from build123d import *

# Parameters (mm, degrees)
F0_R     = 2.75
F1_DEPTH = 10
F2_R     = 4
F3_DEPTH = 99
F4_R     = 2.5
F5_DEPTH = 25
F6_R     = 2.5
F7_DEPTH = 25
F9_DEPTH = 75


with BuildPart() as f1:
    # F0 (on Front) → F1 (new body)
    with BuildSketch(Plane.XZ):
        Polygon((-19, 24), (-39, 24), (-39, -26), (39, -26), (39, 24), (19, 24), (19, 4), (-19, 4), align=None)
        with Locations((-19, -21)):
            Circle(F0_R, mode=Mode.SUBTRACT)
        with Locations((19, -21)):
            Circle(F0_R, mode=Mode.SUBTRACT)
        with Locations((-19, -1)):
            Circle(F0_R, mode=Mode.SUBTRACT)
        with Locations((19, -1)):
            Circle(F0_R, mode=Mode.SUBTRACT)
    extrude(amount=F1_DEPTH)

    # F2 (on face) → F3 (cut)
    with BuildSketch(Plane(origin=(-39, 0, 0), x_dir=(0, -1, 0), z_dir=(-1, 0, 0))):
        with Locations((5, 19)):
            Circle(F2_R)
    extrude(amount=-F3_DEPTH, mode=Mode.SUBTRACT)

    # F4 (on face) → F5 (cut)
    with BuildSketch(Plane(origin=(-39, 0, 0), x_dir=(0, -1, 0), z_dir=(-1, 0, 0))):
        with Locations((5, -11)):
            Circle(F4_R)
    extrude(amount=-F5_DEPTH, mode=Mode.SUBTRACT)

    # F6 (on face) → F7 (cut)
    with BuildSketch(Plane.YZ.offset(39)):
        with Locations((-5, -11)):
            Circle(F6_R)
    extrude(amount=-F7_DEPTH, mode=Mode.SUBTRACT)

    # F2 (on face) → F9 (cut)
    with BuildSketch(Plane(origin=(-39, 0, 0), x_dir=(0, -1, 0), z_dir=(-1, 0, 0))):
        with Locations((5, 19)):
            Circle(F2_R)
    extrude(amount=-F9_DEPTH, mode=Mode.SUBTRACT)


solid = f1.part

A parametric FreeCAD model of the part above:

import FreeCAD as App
import Part
import Sketcher


def add_polygon(sketch, points):
    """Adds a closed chain of lines whose ends are joined by coincident constraints."""
    first, n = sketch.GeometryCount, len(points)
    for a, b in zip(points, points[1:] + points[:1]):
        sketch.addGeometry(Part.LineSegment(App.Vector(*a, 0), App.Vector(*b, 0)), False)
    for i in range(n):
        sketch.addConstraint(Sketcher.Constraint("Coincident", first + i, 2, first + (i + 1) % n, 1))

doc = App.newDocument("Part")
body = doc.addObject("PartDesign::Body", "Body")

# Sketch on XZ plane
sketch1 = doc.addObject("Sketcher::SketchObject", "Sketch")
body.addObject(sketch1)
sketch1.AttachmentSupport = (doc.XZ_Plane, [""])
sketch1.MapMode = "FlatFace"
add_polygon(sketch1, [(-19, 24), (-39, 24), (-39, -26), (39, -26), (39, 24), (19, 24), (19, 4), (-19, 4)])  # lines 0-7
sketch1.addGeometry(Part.Circle(App.Vector(-19, -21, 0), App.Vector(0, 0, 1), 2.8), False)  # 8
sketch1.addGeometry(Part.Circle(App.Vector(19, -21, 0), App.Vector(0, 0, 1), 2.8), False)  # 9
sketch1.addGeometry(Part.Circle(App.Vector(-19, -1, 0), App.Vector(0, 0, 1), 2.8), False)  # 10
sketch1.addGeometry(Part.Circle(App.Vector(19, -1, 0), App.Vector(0, 0, 1), 2.8), False)  # 11
sketch1.addConstraint([
    Sketcher.Constraint("Horizontal", 0),
    Sketcher.Constraint("Vertical", 1),
    Sketcher.Constraint("Horizontal", 2),
    Sketcher.Constraint("Vertical", 3),
    Sketcher.Constraint("Horizontal", 4),
    Sketcher.Constraint("Vertical", 5),
    Sketcher.Constraint("Horizontal", 6),
    Sketcher.Constraint("Vertical", 7),
    Sketcher.Constraint("Equal", 8, 9),
    Sketcher.Constraint("Equal", 9, 10),
    Sketcher.Constraint("Equal", 10, 11),
    Sketcher.Constraint("Symmetric", 8, 3, 9, 3, -2),
    Sketcher.Constraint("Symmetric", 10, 3, 11, 3, -2),
    Sketcher.Constraint("Symmetric", 0, 2, 3, 2, -2),
    Sketcher.Constraint("Vertical", 8, 3, 10, 3),
    Sketcher.Constraint("Vertical", 11, 3, 4, 2),
    Sketcher.Constraint("Vertical", 10, 3, 6, 2),
    Sketcher.Constraint("Equal", 4, 5),
    Sketcher.Constraint("Diameter", 8, 5.5),
    Sketcher.Constraint("DistanceX", 0, 2, 0, 1, 20.0),
    Sketcher.Constraint("DistanceX", 2, 1, 2, 2, 78.0),
    Sketcher.Constraint("DistanceY", 1, 2, 1, 1, 50.0),
    Sketcher.Constraint("DistanceY", 8, 3, -1, 1, 21.0),
    Sketcher.Constraint("DistanceY", 10, 3, -1, 1, 1.0),
    Sketcher.Constraint("DistanceY", -1, 1, 0, 2, 24.0),
])
pad1 = doc.addObject("PartDesign::Pad", "Pad")
body.addObject(pad1)
pad1.Profile = sketch1
pad1.Length = 10

# Sketch on YZ plane
sketch2 = doc.addObject("Sketcher::SketchObject", "Sketch001")
body.addObject(sketch2)
sketch2.AttachmentSupport = (doc.YZ_Plane, [""])
sketch2.MapMode = "FlatFace"
sketch2.AttachmentOffset = App.Placement(App.Vector(0, 0, -39), App.Rotation())
sketch2.addGeometry(Part.Circle(App.Vector(-5, 19, 0), App.Vector(0, 0, 1), 4), False)
sketch2.addConstraint([
    Sketcher.Constraint("Diameter", 0, 8.0),
    Sketcher.Constraint("DistanceX", 0, 3, -1, 1, 5.0),
    Sketcher.Constraint("DistanceY", -1, 1, 0, 3, 19.0),
])
pocket1 = doc.addObject("PartDesign::Pocket", "Pocket")
body.addObject(pocket1)
pocket1.Profile = sketch2
pocket1.Length = 99
pocket1.Reversed = True

# Sketch on YZ plane
sketch3 = doc.addObject("Sketcher::SketchObject", "Sketch002")
body.addObject(sketch3)
sketch3.AttachmentSupport = (doc.YZ_Plane, [""])
sketch3.MapMode = "FlatFace"
sketch3.AttachmentOffset = App.Placement(App.Vector(0, 0, -39), App.Rotation())
sketch3.addGeometry(Part.Circle(App.Vector(-5, -11, 0), App.Vector(0, 0, 1), 2.5), False)
sketch3.addConstraint([
    Sketcher.Constraint("Diameter", 0, 5.0),
    Sketcher.Constraint("DistanceX", 0, 3, -1, 1, 5.0),
    Sketcher.Constraint("DistanceY", 0, 3, -1, 1, 11.0),
])
pocket2 = doc.addObject("PartDesign::Pocket", "Pocket001")
body.addObject(pocket2)
pocket2.Profile = sketch3
pocket2.Length = 25
pocket2.Reversed = True

# Sketch on YZ plane
sketch4 = doc.addObject("Sketcher::SketchObject", "Sketch003")
body.addObject(sketch4)
sketch4.AttachmentSupport = (doc.YZ_Plane, [""])
sketch4.MapMode = "FlatFace"
sketch4.AttachmentOffset = App.Placement(App.Vector(0, 0, 39), App.Rotation())
sketch4.addGeometry(Part.Circle(App.Vector(-5, -11, 0), App.Vector(0, 0, 1), 2.5), False)
sketch4.addConstraint([
    Sketcher.Constraint("Diameter", 0, 5.0),
    Sketcher.Constraint("DistanceX", 0, 3, -1, 1, 5.0),
    Sketcher.Constraint("DistanceY", 0, 3, -1, 1, 11.0),
])
pocket3 = doc.addObject("PartDesign::Pocket", "Pocket002")
body.addObject(pocket3)
pocket3.Profile = sketch4
pocket3.Length = 25

# Sketch on YZ plane
sketch5 = doc.addObject("Sketcher::SketchObject", "Sketch004")
body.addObject(sketch5)
sketch5.AttachmentSupport = (doc.YZ_Plane, [""])
sketch5.MapMode = "FlatFace"
sketch5.AttachmentOffset = App.Placement(App.Vector(0, 0, -39), App.Rotation())
sketch5.addGeometry(Part.Circle(App.Vector(-5, 19, 0), App.Vector(0, 0, 1), 4), False)
sketch5.addConstraint([
    Sketcher.Constraint("Diameter", 0, 8.0),
    Sketcher.Constraint("DistanceX", 0, 3, -1, 1, 5.0),
    Sketcher.Constraint("DistanceY", -1, 1, 0, 3, 19.0),
])
pocket4 = doc.addObject("PartDesign::Pocket", "Pocket003")
body.addObject(pocket4)
pocket4.Profile = sketch5
pocket4.Length = 75
pocket4.Reversed = True

doc.recompute()
